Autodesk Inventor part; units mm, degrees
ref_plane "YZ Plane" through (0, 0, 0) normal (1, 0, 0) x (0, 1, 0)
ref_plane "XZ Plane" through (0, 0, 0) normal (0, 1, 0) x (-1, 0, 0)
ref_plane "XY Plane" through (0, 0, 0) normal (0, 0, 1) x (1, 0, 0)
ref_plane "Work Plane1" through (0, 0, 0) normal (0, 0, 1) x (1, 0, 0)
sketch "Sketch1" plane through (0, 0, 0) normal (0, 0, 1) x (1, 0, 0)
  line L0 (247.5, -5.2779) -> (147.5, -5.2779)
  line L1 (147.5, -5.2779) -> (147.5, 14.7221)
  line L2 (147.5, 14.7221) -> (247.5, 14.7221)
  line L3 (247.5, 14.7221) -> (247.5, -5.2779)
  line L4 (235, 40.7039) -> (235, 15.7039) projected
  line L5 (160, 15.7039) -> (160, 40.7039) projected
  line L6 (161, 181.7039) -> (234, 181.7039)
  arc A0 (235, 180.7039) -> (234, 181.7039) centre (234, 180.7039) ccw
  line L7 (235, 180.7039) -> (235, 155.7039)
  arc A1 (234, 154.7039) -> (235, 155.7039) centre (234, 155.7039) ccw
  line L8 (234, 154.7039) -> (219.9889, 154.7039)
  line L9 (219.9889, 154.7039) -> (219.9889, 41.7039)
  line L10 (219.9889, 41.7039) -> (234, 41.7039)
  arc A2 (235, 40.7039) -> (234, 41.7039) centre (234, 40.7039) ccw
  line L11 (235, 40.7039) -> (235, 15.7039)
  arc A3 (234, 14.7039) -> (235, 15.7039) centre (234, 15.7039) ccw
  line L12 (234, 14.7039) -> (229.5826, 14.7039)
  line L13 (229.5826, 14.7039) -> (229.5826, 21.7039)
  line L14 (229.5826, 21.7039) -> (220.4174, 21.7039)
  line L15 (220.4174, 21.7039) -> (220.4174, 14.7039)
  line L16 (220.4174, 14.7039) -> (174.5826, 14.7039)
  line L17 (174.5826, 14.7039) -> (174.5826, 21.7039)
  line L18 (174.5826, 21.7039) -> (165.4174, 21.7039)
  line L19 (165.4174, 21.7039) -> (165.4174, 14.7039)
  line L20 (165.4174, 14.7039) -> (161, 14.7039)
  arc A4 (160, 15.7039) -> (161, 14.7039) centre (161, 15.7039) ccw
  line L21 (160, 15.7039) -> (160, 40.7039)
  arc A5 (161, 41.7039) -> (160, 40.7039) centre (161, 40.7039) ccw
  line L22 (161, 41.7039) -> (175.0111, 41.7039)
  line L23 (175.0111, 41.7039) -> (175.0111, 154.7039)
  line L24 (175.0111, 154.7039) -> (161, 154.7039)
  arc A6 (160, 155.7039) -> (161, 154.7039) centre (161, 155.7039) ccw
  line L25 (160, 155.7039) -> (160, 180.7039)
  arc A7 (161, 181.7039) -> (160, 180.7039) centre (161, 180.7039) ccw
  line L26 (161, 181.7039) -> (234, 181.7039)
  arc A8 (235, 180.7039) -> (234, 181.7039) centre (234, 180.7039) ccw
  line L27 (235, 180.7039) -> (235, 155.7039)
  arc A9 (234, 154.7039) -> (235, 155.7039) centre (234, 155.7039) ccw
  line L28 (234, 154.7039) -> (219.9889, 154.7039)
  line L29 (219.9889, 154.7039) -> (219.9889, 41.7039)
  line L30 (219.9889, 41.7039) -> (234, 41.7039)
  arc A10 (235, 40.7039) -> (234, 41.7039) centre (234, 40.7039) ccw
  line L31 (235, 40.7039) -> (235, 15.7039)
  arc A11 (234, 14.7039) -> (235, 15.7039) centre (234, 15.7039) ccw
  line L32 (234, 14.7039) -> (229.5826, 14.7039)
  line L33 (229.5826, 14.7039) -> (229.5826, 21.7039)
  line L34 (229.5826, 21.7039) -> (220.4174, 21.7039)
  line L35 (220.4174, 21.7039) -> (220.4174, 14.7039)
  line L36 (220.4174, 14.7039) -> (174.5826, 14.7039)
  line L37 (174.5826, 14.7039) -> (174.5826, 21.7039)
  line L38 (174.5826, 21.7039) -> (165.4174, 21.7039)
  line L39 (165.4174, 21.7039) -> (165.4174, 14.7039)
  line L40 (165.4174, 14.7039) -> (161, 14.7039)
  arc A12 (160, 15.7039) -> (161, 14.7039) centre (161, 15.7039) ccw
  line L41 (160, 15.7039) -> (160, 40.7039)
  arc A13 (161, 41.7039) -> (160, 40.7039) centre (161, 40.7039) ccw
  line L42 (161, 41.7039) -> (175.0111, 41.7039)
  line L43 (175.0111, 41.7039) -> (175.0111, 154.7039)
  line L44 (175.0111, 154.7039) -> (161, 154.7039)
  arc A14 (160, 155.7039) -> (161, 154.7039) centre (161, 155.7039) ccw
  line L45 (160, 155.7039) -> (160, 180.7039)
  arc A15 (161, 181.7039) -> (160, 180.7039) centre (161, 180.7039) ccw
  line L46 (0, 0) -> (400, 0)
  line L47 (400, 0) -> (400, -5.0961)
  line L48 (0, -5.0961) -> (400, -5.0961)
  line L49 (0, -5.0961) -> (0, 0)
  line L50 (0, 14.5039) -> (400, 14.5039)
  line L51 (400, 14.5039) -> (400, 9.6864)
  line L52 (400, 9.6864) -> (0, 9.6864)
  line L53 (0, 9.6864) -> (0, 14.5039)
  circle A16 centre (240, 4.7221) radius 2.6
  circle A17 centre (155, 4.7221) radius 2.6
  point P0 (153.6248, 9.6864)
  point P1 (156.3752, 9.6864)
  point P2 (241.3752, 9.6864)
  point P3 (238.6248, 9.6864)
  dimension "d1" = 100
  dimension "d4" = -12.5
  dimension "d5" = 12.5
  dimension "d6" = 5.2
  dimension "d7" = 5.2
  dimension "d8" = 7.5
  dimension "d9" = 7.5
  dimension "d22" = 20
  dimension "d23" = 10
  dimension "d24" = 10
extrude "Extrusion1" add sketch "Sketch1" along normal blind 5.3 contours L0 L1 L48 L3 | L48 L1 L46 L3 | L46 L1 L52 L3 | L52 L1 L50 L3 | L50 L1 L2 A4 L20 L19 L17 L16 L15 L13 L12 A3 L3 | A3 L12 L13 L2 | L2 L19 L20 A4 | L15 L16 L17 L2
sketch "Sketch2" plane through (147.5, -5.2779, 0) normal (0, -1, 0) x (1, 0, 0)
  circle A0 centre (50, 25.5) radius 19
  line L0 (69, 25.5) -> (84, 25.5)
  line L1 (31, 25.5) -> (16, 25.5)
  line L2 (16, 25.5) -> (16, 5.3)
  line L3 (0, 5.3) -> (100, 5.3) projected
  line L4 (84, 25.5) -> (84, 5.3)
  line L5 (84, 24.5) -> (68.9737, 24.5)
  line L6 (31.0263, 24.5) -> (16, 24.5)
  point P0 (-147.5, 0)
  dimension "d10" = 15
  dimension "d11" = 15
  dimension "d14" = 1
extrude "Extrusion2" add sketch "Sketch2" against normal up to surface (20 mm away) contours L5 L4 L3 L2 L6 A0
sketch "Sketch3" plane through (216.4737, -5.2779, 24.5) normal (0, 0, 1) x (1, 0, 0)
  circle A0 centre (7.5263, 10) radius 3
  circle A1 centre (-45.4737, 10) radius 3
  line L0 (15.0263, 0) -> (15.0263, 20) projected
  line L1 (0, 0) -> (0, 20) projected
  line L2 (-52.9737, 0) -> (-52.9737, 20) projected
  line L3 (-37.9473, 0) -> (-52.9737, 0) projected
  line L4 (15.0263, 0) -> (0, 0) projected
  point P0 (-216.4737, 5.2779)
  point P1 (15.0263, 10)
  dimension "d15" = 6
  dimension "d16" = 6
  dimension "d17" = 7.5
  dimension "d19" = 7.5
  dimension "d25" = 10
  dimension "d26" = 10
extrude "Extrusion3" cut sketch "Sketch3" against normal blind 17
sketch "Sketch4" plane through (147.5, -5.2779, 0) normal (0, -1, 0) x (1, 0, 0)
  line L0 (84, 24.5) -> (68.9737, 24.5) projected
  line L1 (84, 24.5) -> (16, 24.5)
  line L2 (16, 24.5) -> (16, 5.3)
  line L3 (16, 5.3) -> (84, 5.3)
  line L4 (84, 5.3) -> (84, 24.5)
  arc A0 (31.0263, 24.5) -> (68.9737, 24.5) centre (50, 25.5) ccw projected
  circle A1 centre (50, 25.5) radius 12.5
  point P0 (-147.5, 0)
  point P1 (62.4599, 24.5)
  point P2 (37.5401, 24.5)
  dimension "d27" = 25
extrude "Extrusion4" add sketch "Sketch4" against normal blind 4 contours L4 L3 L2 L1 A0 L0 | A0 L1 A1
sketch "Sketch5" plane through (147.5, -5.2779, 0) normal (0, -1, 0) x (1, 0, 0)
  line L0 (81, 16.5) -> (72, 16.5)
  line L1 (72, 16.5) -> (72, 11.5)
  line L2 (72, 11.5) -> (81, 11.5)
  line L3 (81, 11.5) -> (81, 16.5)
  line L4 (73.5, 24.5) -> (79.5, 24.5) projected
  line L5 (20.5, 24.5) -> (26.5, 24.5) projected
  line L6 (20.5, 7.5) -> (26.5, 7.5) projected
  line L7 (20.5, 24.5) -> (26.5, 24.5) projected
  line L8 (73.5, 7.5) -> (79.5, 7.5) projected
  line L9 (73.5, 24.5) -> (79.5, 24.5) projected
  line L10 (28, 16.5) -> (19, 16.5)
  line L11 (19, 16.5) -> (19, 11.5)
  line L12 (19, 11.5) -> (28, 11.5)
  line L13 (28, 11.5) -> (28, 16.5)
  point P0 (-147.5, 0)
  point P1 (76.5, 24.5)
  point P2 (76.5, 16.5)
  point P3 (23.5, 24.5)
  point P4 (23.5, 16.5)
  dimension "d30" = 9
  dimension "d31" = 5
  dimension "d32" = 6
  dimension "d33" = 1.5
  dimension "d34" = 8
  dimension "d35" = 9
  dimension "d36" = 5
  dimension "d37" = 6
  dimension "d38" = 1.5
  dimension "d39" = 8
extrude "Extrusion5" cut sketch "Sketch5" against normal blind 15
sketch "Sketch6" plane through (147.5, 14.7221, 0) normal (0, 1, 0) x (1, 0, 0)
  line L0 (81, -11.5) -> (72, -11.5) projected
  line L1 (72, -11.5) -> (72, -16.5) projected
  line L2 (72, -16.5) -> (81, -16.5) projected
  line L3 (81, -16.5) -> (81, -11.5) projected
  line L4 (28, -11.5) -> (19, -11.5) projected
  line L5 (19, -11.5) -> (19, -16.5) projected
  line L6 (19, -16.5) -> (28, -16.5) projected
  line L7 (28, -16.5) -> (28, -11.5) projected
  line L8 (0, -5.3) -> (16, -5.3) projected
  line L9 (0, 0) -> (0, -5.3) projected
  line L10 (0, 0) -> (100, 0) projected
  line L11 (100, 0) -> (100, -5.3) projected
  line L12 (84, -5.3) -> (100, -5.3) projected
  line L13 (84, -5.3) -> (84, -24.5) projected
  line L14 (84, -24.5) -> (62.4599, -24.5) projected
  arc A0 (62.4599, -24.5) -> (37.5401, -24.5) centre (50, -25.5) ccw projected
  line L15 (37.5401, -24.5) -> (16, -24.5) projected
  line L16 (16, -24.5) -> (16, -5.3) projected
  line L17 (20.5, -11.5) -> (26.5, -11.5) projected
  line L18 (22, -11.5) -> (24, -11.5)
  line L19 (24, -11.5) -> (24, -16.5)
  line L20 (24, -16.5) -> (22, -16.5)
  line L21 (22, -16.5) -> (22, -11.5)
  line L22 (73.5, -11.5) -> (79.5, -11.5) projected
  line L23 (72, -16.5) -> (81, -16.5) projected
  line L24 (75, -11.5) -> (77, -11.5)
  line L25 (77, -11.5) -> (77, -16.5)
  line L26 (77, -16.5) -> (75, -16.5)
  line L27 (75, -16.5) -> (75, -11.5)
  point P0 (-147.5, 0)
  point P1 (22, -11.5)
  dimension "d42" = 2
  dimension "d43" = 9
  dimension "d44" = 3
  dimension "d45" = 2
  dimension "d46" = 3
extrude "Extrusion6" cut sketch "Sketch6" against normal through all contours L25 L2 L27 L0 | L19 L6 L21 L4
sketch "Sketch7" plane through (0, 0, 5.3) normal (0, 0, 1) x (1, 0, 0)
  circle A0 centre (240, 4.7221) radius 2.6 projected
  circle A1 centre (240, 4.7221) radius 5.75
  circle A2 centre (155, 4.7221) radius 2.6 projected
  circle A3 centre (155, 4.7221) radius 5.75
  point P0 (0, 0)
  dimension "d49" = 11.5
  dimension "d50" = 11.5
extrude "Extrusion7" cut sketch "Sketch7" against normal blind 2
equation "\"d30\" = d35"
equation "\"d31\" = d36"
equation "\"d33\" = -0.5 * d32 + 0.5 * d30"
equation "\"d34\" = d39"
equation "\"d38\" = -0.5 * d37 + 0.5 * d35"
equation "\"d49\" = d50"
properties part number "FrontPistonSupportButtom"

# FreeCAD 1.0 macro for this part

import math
import FreeCAD as App
import Part
import Sketcher

V = App.Vector

doc = App.newDocument("Part")
body = doc.addObject("PartDesign::Body", "Body")

sketch1 = doc.addObject("Sketcher::SketchObject", "Sketch")
body.addObject(sketch1)
sketch1.AttachmentSupport = (doc.XY_Plane, [""])
sketch1.MapMode = "FlatFace"
sketch1.addGeometry([
    Part.LineSegment(V(147.5, -5.3, 0), V(247.5, -5.3, 0)),
    Part.LineSegment(V(247.5, -5.3, 0), V(247.5, 14.7, 0)),
    Part.LineSegment(V(247.5, 14.7, 0), V(147.5, 14.7, 0)),
    Part.LineSegment(V(147.5, 14.7, 0), V(147.5, -5.3, 0)),
    Part.Circle(V(240, 4.7, 0), V(0, 0, 1), 2.6),
    Part.Circle(V(155, 4.7, 0), V(0, 0, 1), 2.6),
], False)
sketch1.addConstraint([
    Sketcher.Constraint("Coincident", 0, 2, 1, 1),
    Sketcher.Constraint("Coincident", 1, 2, 2, 1),
    Sketcher.Constraint("Coincident", 2, 2, 3, 1),
    Sketcher.Constraint("Coincident", 3, 2, 0, 1),
    Sketcher.Constraint("Horizontal", 0),
    Sketcher.Constraint("Vertical", 1),
    Sketcher.Constraint("Horizontal", 2),
    Sketcher.Constraint("Vertical", 3),
    Sketcher.Constraint("Equal", 4, 5),
    Sketcher.Constraint("Horizontal", 4, 3, 5, 3),
    Sketcher.Constraint("Diameter", 4, 5.2),
    Sketcher.Constraint("DistanceX", 0, 1, 0, 2, 100.0),
    Sketcher.Constraint("DistanceY", 1, 1, 1, 2, 20.0),
    Sketcher.Constraint("DistanceY", 0, 2, 4, 3, 10.0),
    Sketcher.Constraint("DistanceX", 4, 3, 0, 2, 7.5),
    Sketcher.Constraint("DistanceX", 2, 2, 5, 3, 7.5),
    Sketcher.Constraint("DistanceX", -1, 1, 4, 3, 240.0),
    Sketcher.Constraint("DistanceY", -1, 1, 4, 3, 4.722),
])
pad1 = doc.addObject("PartDesign::Pad", "Pad")
body.addObject(pad1)
pad1.Profile = sketch1
pad1.Length = 5.3

sketch2 = doc.addObject("Sketcher::SketchObject", "Sketch001")
body.addObject(sketch2)
sketch2.AttachmentSupport = (doc.XZ_Plane, [""])
sketch2.MapMode = "FlatFace"
sketch2.AttachmentOffset = App.Placement(V(0, 0, 5.2779), App.Rotation())
sketch2.addGeometry([
    Part.LineSegment(V(232, 24, 0), V(216, 24, 0)),
    Part.ArcOfCircle(Part.Circle(V(198, 26, 0), V(0, 0, 1), 19), math.radians(-177), math.radians(-3)),
    Part.LineSegment(V(179, 24, 0), V(164, 24, 0)),
    Part.LineSegment(V(164, 24, 0), V(164, 5, 0)),
    Part.LineSegment(V(164, 5, 0), V(232, 5, 0)),
    Part.LineSegment(V(232, 5, 0), V(232, 24, 0)),
], False)
sketch2.addConstraint([
    Sketcher.Constraint("Coincident", 0, 2, 1, 2),
    Sketcher.Constraint("Coincident", 1, 1, 2, 1),
    Sketcher.Constraint("Coincident", 2, 2, 3, 1),
    Sketcher.Constraint("Coincident", 3, 2, 4, 1),
    Sketcher.Constraint("Coincident", 4, 2, 5, 1),
    Sketcher.Constraint("Coincident", 5, 2, 0, 1),
    Sketcher.Constraint("Horizontal", 0),
    Sketcher.Constraint("Horizontal", 2),
    Sketcher.Constraint("Vertical", 3),
    Sketcher.Constraint("Horizontal", 4),
    Sketcher.Constraint("Vertical", 5),
    Sketcher.Constraint("Horizontal", 0, 2, 1, 1),
    Sketcher.Constraint("Equal", 0, 2),
    Sketcher.Constraint("Radius", 1, 19.0),
    Sketcher.Constraint("DistanceY", 0, 2, 1, 3, 1.0),
    Sketcher.Constraint("DistanceX", 4, 1, 4, 2, 68.0),
    Sketcher.Constraint("DistanceY", 3, 2, 3, 1, 19.2),
    Sketcher.Constraint("DistanceX", -1, 1, 1, 3, 197.5),
    Sketcher.Constraint("DistanceY", -1, 1, 1, 3, 25.5),
])
pad2 = doc.addObject("PartDesign::Pad", "Pad001")
body.addObject(pad2)
pad2.Profile = sketch2
pad2.Length = 20
pad2.Reversed = True

sketch3 = doc.addObject("Sketcher::SketchObject", "Sketch002")
body.addObject(sketch3)
sketch3.AttachmentSupport = (doc.XY_Plane, [""])
sketch3.MapMode = "FlatFace"
sketch3.AttachmentOffset = App.Placement(V(0, 0, 24.5), App.Rotation())
sketch3.addGeometry([
    Part.Circle(V(224, 4.7, 0), V(0, 0, 1), 3),
    Part.Circle(V(171, 4.7, 0), V(0, 0, 1), 3),
], False)
sketch3.addConstraint([
    Sketcher.Constraint("Equal", 0, 1),
    Sketcher.Constraint("Horizontal", 0, 3, 1, 3),
    Sketcher.Constraint("Diameter", 0, 6.0),
    Sketcher.Constraint("DistanceX", -1, 1, 0, 3, 224.0),
    Sketcher.Constraint("DistanceX", -1, 1, 1, 3, 171.0),
    Sketcher.Constraint("DistanceY", -1, 1, 0, 3, 4.722),
])
pocket1 = doc.addObject("PartDesign::Pocket", "Pocket")
body.addObject(pocket1)
pocket1.Profile = sketch3
pocket1.Length = 17

sketch4 = doc.addObject("Sketcher::SketchObject", "Sketch003")
body.addObject(sketch4)
sketch4.AttachmentSupport = (doc.XZ_Plane, [""])
sketch4.MapMode = "FlatFace"
sketch4.AttachmentOffset = App.Placement(V(0, 0, 5.2779), App.Rotation())
sketch4.addGeometry([
    Part.LineSegment(V(232, 5, 0), V(232, 24, 0)),
    Part.LineSegment(V(232, 24, 0), V(210, 24, 0)),
    Part.ArcOfCircle(Part.Circle(V(198, 26, 0), V(0, 0, 1), 12), math.radians(-175), math.radians(-5)),
    Part.LineSegment(V(185, 24, 0), V(164, 24, 0)),
    Part.LineSegment(V(164, 24, 0), V(164, 5, 0)),
    Part.LineSegment(V(164, 5, 0), V(232, 5, 0)),
], False)
sketch4.addConstraint([
    Sketcher.Constraint("Coincident", 0, 2, 1, 1),
    Sketcher.Constraint("Coincident", 1, 2, 2, 2),
    Sketcher.Constraint("Coincident", 2, 1, 3, 1),
    Sketcher.Constraint("Coincident", 3, 2, 4, 1),
    Sketcher.Constraint("Coincident", 4, 2, 5, 1),
    Sketcher.Constraint("Coincident", 5, 2, 0, 1),
    Sketcher.Constraint("Vertical", 0),
    Sketcher.Constraint("Horizontal", 1),
    Sketcher.Constraint("Horizontal", 3),
    Sketcher.Constraint("Vertical", 4),
    Sketcher.Constraint("Horizontal", 5),
    Sketcher.Constraint("Horizontal", 1, 2, 2, 1),
    Sketcher.Constraint("Equal", 1, 3),
    Sketcher.Constraint("Radius", 2, 12.5),
    Sketcher.Constraint("DistanceX", 5, 1, 5, 2, 68.0),
    Sketcher.Constraint("DistanceY", 0, 1, 0, 2, 19.2),
    Sketcher.Constraint("DistanceY", 0, 2, 2, 3, 1.0),
    Sketcher.Constraint("DistanceX", -1, 1, 2, 3, 197.5),
    Sketcher.Constraint("DistanceY", -1, 1, 2, 3, 25.5),
])
pad3 = doc.addObject("PartDesign::Pad", "Pad002")
body.addObject(pad3)
pad3.Profile = sketch4
pad3.Length = 4
pad3.Reversed = True

sketch5 = doc.addObject("Sketcher::SketchObject", "Sketch004")
body.addObject(sketch5)
sketch5.AttachmentSupport = (doc.XZ_Plane, [""])
sketch5.MapMode = "FlatFace"
sketch5.AttachmentOffset = App.Placement(V(0, 0, 5.2779), App.Rotation())
sketch5.addGeometry([
    Part.LineSegment(V(228, 12, 0), V(228, 16, 0)),
    Part.LineSegment(V(228, 16, 0), V(220, 16, 0)),
    Part.LineSegment(V(220, 16, 0), V(220, 12, 0)),
    Part.LineSegment(V(220, 12, 0), V(228, 12, 0)),
    Part.LineSegment(V(176, 12, 0), V(176, 16, 0)),
    Part.LineSegment(V(176, 16, 0), V(166, 16, 0)),
    Part.LineSegment(V(166, 16, 0), V(166, 12, 0)),
    Part.LineSegment(V(166, 12, 0), V(176, 12, 0)),
], False)
sketch5.addConstraint([
    Sketcher.Constraint("Coincident", 0, 2, 1, 1),
    Sketcher.Constraint("Coincident", 1, 2, 2, 1),
    Sketcher.Constraint("Coincident", 2, 2, 3, 1),
    Sketcher.Constraint("Coincident", 3, 2, 0, 1),
    Sketcher.Constraint("Coincident", 4, 2, 5, 1),
    Sketcher.Constraint("Coincident", 5, 2, 6, 1),
    Sketcher.Constraint("Coincident", 6, 2, 7, 1),
    Sketcher.Constraint("Coincident", 7, 2, 4, 1),
    Sketcher.Constraint("Vertical", 0),
    Sketcher.Constraint("Horizontal", 1),
    Sketcher.Constraint("Vertical", 2),
    Sketcher.Constraint("Horizontal", 3),
    Sketcher.Constraint("Vertical", 4),
    Sketcher.Constraint("Horizontal", 5),
    Sketcher.Constraint("Vertical", 6),
    Sketcher.Constraint("Horizontal", 7),
    Sketcher.Constraint("Horizontal", 1, 2, 4, 2),
    Sketcher.Constraint("Horizontal", 3, 2, 6, 2),
    Sketcher.Constraint("Equal", 3, 5),
    Sketcher.Constraint("DistanceX", 1, 2, 1, 1, 9.0),
    Sketcher.Constraint("DistanceY", 0, 1, 0, 2, 5.0),
    Sketcher.Constraint("DistanceX", 4, 2, 1, 2, 44.0),
    Sketcher.Constraint("DistanceX", -1, 1, 0, 2, 228.5),
    Sketcher.Constraint("DistanceY", -1, 1, 0, 2, 16.5),
])
pocket2 = doc.addObject("PartDesign::Pocket", "Pocket001")
body.addObject(pocket2)
pocket2.Profile = sketch5
pocket2.Length = 15

sketch6 = doc.addObject("Sketcher::SketchObject", "Sketch005")
body.addObject(sketch6)
sketch6.AttachmentSupport = (doc.XZ_Plane, [""])
sketch6.MapMode = "FlatFace"
sketch6.AttachmentOffset = App.Placement(V(0, 0, -14.7221), App.Rotation())
sketch6.addGeometry([
    Part.LineSegment(V(224.5, 16.5, 0), V(224.5, 11.5, 0)),
    Part.LineSegment(V(224.5, 11.5, 0), V(222.5, 11.5, 0)),
    Part.LineSegment(V(222.5, 11.5, 0), V(222.5, 16.5, 0)),
    Part.LineSegment(V(222.5, 16.5, 0), V(224.5, 16.5, 0)),
    Part.LineSegment(V(171.5, 16.5, 0), V(171.5, 11.5, 0)),
    Part.LineSegment(V(171.5, 11.5, 0), V(169.5, 11.5, 0)),
    Part.LineSegment(V(169.5, 11.5, 0), V(169.5, 16.5, 0)),
    Part.LineSegment(V(169.5, 16.5, 0), V(171.5, 16.5, 0)),
], False)
sketch6.addConstraint([
    Sketcher.Constraint("Coincident", 0, 2, 1, 1),
    Sketcher.Constraint("Coincident", 1, 2, 2, 1),
    Sketcher.Constraint("Coincident", 2, 2, 3, 1),
    Sketcher.Constraint("Coincident", 3, 2, 0, 1),
    Sketcher.Constraint("Coincident", 4, 2, 5, 1),
    Sketcher.Constraint("Coincident", 5, 2, 6, 1),
    Sketcher.Constraint("Coincident", 6, 2, 7, 1),
    Sketcher.Constraint("Coincident", 7, 2, 4, 1),
    Sketcher.Constraint("Vertical", 0),
    Sketcher.Constraint("Horizontal", 1),
    Sketcher.Constraint("Vertical", 2),
    Sketcher.Constraint("Horizontal", 3),
    Sketcher.Constraint("Vertical", 4),
    Sketcher.Constraint("Horizontal", 5),
    Sketcher.Constraint("Vertical", 6),
    Sketcher.Constraint("Horizontal", 7),
    Sketcher.Constraint("Horizontal", 1, 2, 4, 2),
    Sketcher.Constraint("Horizontal", 3, 2, 6, 2),
    Sketcher.Constraint("Equal", 3, 5),
    Sketcher.Constraint("DistanceX", 1, 2, 1, 1, 2.0),
    Sketcher.Constraint("DistanceY", 0, 2, 0, 1, 5.0),
    Sketcher.Constraint("DistanceX", 4, 2, 1, 2, 51.0),
    Sketcher.Constraint("DistanceX", -1, 1, 0, 2, 224.5),
    Sketcher.Constraint("DistanceY", -1, 1, 0, 2, 11.5),
])
pocket3 = doc.addObject("PartDesign::Pocket", "Pocket002")
body.addObject(pocket3)
pocket3.Profile = sketch6
pocket3.Type = "ThroughAll"
pocket3.Reversed = True

sketch7 = doc.addObject("Sketcher::SketchObject", "Sketch006")
body.addObject(sketch7)
sketch7.AttachmentSupport = (doc.XY_Plane, [""])
sketch7.MapMode = "FlatFace"
sketch7.AttachmentOffset = App.Placement(V(0, 0, 5.3), App.Rotation())
sketch7.addGeometry([
    Part.Circle(V(240, 4.7, 0), V(0, 0, 1), 5.8),
    Part.Circle(V(240, 4.7, 0), V(0, 0, 1), 2.6),
    Part.Circle(V(155, 4.7, 0), V(0, 0, 1), 5.8),
    Part.Circle(V(155, 4.7, 0), V(0, 0, 1), 2.6),
], False)
sketch7.addConstraint([
    Sketcher.Constraint("Coincident", 1, 3, 0, 3),
    Sketcher.Constraint("Coincident", 3, 3, 2, 3),
    Sketcher.Constraint("Equal", 0, 2),
    Sketcher.Constraint("Equal", 1, 3),
    Sketcher.Constraint("Horizontal", 1, 3, 2, 3),
    Sketcher.Constraint("Diameter", 0, 11.5),
    Sketcher.Constraint("Diameter", 1, 5.2),
    Sketcher.Constraint("DistanceX", -1, 1, 0, 3, 240.0),
    Sketcher.Constraint("DistanceX", -1, 1, 2, 3, 155.0),
    Sketcher.Constraint("DistanceY", -1, 1, 0, 3, 4.722),
])
pocket4 = doc.addObject("PartDesign::Pocket", "Pocket003")
body.addObject(pocket4)
pocket4.Profile = sketch7
pocket4.Length = 2

doc.recompute()
